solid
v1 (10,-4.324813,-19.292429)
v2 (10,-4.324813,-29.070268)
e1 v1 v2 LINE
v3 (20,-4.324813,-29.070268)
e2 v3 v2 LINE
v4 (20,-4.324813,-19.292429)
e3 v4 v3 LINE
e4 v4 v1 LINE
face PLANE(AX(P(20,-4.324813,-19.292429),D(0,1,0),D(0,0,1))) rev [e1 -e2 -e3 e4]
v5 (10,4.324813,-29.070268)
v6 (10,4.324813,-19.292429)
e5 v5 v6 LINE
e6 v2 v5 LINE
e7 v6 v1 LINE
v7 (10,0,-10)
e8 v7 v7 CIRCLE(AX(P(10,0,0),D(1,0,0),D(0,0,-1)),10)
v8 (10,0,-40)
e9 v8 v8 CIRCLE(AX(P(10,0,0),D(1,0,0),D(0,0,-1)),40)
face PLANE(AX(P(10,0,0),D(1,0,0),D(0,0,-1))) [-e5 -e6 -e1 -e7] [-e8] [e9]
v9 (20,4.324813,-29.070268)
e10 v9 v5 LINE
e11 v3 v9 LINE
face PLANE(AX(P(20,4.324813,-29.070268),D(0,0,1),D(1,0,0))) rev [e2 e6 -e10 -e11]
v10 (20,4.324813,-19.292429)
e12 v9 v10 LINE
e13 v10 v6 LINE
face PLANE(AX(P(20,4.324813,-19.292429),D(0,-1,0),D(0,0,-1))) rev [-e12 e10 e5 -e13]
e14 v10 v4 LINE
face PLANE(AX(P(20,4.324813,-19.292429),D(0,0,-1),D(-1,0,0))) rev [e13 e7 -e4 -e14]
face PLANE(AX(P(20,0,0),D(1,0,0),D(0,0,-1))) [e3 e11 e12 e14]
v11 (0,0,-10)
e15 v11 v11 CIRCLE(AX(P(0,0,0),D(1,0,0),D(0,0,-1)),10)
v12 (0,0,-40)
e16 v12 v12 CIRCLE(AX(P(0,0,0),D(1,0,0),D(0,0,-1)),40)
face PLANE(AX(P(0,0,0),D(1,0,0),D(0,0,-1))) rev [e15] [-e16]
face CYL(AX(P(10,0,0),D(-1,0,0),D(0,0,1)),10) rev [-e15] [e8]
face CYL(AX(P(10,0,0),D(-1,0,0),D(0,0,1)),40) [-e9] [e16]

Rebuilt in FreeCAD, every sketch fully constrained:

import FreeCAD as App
import Part
import Sketcher
Q = App.Units.Quantity


def add_polygon(sketch, points):
    """Adds a closed chain of lines whose ends are joined by coincident constraints."""
    first, n = sketch.GeometryCount, len(points)
    for a, b in zip(points, points[1:] + points[:1]):
        sketch.addGeometry(Part.LineSegment(App.Vector(*a, 0), App.Vector(*b, 0)), False)
    for i in range(n):
        sketch.addConstraint(Sketcher.Constraint("Coincident", first + i, 2, first + (i + 1) % n, 1))

doc = App.newDocument("Part")
body = doc.addObject("PartDesign::Body", "Body")

# Sketch on YZ plane
sketch1 = doc.addObject("Sketcher::SketchObject", "Sketch")
body.addObject(sketch1)
sketch1.AttachmentSupport = (doc.YZ_Plane, [""])
sketch1.MapMode = "FlatFace"
sketch1.addGeometry(Part.Circle(App.Vector(0, 0, 0), App.Vector(0, 0, 1), 40), False)
sketch1.addGeometry(Part.Circle(App.Vector(0, 0, 0), App.Vector(0, 0, 1), 10), False)
sketch1.addConstraint(Sketcher.Constraint("Coincident", 0, 3, -1, 1))
sketch1.addConstraint(Sketcher.Constraint("Coincident", 1, 3, -1, 1))
sketch1.addConstraint(Sketcher.Constraint("Diameter", 0, Q("80 mm")))
sketch1.addConstraint(Sketcher.Constraint("Diameter", 1, Q("20 mm")))
pad1 = doc.addObject("PartDesign::Pad", "Pad")
body.addObject(pad1)
pad1.Profile = sketch1
pad1.Length = 10

# Sketch on YZ plane
sketch2 = doc.addObject("Sketcher::SketchObject", "Sketch001")
body.addObject(sketch2)
sketch2.AttachmentSupport = (doc.YZ_Plane, [""])
sketch2.MapMode = "FlatFace"
sketch2.AttachmentOffset = App.Placement(App.Vector(0, 0, 10), App.Rotation())
add_polygon(sketch2, [(4, -19), (-4, -19), (-4, -29), (4, -29)])  # lines 0-3
sketch2.addConstraint(Sketcher.Constraint("Horizontal", 0))
sketch2.addConstraint(Sketcher.Constraint("Vertical", 1))
sketch2.addConstraint(Sketcher.Constraint("Horizontal", 2))
sketch2.addConstraint(Sketcher.Constraint("Vertical", 3))
sketch2.addConstraint(Sketcher.Constraint("DistanceY", 1, 2, 1, 1, Q("9.777839 mm")))
sketch2.addConstraint(Sketcher.Constraint("DistanceX", 0, 2, 0, 1, Q("8.649627 mm")))
sketch2.addConstraint(Sketcher.Constraint("DistanceY", 0, 2, -1, 1, Q("19.292429 mm")))
sketch2.addConstraint(Sketcher.Constraint("DistanceX", 0, 2, -1, 1, Q("4.324813 mm")))
pad2 = doc.addObject("PartDesign::Pad", "Pad001")
body.addObject(pad2)
pad2.Profile = sketch2
pad2.Length = 10

doc.recompute()
